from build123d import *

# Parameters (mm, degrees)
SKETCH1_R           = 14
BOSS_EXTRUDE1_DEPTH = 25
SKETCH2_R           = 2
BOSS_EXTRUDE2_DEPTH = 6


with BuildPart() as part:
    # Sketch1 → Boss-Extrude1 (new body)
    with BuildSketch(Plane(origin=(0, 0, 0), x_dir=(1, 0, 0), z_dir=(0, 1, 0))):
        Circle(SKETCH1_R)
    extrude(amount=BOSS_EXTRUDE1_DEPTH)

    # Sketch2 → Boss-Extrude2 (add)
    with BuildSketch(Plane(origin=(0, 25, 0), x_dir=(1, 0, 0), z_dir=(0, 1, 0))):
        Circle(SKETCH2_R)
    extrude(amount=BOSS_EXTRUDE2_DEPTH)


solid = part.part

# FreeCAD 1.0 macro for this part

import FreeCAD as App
import Part
import Sketcher

V = App.Vector

doc = App.newDocument("Part")
body = doc.addObject("PartDesign::Body", "Body")

# Sketch on XZ plane
sketch1 = body.newObject("Sketcher::SketchObject", "Sketch")
sketch1.AttachmentSupport = (doc.getObject("XZ_Plane"), [""])
sketch1.MapMode = "FlatFace"
sketch1.addGeometry(Part.Circle(V(0, 0, 0), V(0, 0, 1), 14), False)
sketch1.addConstraint([
    Sketcher.Constraint("Coincident", 0, 3, -1, 1),
    Sketcher.Constraint("Diameter", 0, 28.0),
])
pad1 = body.newObject("PartDesign::Pad", "Pad")
pad1.Profile = sketch1
pad1.Length = 25
pad1.Reversed = True

# Sketch on XZ plane
sketch2 = body.newObject("Sketcher::SketchObject", "Sketch001")
sketch2.AttachmentSupport = (doc.getObject("XZ_Plane"), [""])
sketch2.MapMode = "FlatFace"
sketch2.AttachmentOffset = App.Placement(V(0, 0, -25), App.Rotation())
sketch2.addGeometry(Part.Circle(V(0, 0, 0), V(0, 0, 1), 2), False)
sketch2.addConstraint([
    Sketcher.Constraint("Coincident", 0, 3, -1, 1),
    Sketcher.Constraint("Diameter", 0, 4.0),
])
pad2 = body.newObject("PartDesign::Pad", "Pad001")
pad2.Profile = sketch2
pad2.Length = 6
pad2.Reversed = True

doc.recompute()
